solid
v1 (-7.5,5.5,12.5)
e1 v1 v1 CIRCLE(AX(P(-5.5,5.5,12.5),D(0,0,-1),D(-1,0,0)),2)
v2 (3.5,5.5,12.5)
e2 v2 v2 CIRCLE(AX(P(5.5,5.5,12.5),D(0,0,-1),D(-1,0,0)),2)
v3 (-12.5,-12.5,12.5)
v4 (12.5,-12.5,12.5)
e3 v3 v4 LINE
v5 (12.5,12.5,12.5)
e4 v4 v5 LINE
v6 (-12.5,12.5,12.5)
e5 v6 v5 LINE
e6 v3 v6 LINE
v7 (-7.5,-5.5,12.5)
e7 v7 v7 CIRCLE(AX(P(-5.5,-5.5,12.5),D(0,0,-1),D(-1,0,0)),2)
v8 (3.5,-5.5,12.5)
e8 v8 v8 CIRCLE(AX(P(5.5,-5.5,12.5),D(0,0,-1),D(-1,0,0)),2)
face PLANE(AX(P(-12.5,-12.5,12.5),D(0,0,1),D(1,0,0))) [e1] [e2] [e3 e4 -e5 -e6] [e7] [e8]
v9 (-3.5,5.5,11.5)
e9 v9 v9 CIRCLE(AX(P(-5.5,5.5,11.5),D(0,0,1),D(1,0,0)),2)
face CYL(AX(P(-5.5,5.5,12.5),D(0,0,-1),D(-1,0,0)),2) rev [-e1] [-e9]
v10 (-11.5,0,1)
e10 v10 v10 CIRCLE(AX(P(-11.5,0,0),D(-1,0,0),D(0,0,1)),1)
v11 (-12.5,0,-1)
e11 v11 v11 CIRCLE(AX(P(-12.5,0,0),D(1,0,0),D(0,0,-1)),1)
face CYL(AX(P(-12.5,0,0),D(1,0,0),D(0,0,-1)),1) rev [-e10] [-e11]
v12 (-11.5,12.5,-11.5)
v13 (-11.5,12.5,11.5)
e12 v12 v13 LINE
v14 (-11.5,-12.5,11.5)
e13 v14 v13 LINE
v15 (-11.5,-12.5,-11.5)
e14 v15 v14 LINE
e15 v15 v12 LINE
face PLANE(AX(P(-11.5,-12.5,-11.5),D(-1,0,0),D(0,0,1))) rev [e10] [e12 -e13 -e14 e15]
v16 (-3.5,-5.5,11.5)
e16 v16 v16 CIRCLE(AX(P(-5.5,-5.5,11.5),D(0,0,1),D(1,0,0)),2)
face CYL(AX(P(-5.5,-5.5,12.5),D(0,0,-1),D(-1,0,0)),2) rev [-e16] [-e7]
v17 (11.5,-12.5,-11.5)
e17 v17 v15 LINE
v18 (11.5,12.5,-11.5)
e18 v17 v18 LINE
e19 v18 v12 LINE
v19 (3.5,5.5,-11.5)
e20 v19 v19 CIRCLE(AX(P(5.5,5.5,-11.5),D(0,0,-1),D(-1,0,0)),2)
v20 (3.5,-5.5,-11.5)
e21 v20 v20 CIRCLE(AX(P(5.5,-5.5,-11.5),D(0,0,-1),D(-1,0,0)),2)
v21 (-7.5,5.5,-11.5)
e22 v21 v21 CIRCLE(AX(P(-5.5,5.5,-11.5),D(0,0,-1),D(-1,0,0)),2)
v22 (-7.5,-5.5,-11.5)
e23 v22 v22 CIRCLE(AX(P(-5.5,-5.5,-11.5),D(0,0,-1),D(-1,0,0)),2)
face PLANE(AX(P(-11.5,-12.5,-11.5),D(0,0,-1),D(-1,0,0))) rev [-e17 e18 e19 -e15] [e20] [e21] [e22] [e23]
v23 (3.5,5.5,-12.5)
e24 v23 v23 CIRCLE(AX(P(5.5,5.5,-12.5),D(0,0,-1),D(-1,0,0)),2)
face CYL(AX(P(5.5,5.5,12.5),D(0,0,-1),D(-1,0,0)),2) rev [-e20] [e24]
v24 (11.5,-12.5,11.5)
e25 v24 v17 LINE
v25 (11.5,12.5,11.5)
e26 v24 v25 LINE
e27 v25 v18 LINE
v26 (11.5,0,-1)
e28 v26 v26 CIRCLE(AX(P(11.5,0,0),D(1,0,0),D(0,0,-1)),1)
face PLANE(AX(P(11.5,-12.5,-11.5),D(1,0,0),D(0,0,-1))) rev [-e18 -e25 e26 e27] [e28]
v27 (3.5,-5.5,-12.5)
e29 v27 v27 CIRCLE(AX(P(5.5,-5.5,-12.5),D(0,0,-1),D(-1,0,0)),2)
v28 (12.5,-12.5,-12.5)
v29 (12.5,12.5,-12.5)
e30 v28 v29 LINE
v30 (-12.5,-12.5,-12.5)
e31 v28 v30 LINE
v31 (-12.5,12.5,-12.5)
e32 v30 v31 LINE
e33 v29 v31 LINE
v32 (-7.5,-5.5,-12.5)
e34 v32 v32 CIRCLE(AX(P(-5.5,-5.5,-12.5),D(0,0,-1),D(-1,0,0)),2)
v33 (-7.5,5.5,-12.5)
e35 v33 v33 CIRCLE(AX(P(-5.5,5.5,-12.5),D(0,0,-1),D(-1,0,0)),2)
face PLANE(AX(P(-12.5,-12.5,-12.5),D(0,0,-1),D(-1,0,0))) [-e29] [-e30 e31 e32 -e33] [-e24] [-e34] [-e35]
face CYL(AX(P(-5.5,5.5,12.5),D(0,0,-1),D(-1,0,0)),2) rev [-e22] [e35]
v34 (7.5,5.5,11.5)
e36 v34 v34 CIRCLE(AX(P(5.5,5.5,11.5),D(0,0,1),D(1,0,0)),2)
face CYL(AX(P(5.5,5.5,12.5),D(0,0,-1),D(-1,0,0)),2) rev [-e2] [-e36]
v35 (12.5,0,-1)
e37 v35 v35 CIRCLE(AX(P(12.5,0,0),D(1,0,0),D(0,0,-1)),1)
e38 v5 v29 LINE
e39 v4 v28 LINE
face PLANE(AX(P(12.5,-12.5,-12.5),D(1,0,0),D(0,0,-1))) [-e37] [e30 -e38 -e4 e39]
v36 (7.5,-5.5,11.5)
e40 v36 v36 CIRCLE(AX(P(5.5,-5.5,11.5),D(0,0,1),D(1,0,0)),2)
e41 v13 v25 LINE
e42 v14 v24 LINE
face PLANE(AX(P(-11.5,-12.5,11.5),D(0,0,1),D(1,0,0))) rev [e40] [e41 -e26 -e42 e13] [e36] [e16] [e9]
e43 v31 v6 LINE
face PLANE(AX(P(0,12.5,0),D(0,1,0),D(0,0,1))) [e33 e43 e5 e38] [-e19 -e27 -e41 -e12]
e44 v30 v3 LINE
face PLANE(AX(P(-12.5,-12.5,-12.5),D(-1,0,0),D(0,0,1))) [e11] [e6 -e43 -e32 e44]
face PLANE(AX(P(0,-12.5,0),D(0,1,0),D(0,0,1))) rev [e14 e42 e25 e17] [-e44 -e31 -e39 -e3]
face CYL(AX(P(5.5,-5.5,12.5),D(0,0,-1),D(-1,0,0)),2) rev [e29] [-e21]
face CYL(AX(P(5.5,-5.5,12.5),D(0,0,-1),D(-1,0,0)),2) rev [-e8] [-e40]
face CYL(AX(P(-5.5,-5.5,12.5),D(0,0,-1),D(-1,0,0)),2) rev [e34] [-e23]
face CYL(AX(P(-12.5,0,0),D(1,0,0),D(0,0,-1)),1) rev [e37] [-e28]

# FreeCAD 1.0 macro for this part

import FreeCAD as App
import Part
import Sketcher

V = App.Vector
Q = App.Units.Quantity


def add_polygon(sketch, points):
    """Adds a closed chain of lines whose ends are joined by coincident constraints."""
    first, n = sketch.GeometryCount, len(points)
    for a, b in zip(points, points[1:] + points[:1]):
        sketch.addGeometry(Part.LineSegment(App.Vector(*a, 0), App.Vector(*b, 0)), False)
    for i in range(n):
        sketch.addConstraint(Sketcher.Constraint("Coincident", first + i, 2, first + (i + 1) % n, 1))

doc = App.newDocument("Part")
body = doc.addObject("PartDesign::Body", "Body")

# Sketch on XZ plane
sketch1 = doc.addObject("Sketcher::SketchObject", "Sketch")
body.addObject(sketch1)
sketch1.AttachmentSupport = (doc.XZ_Plane, [""])
sketch1.MapMode = "FlatFace"
add_polygon(sketch1, [(-12.5, -12.5), (-12.5, 12.5), (12.5, 12.5), (12.5, -12.5)])  # lines 0-3
add_polygon(sketch1, [(11.5, 11.5), (-11.5, 11.5), (-11.5, -11.5), (11.5, -11.5)])  # lines 4-7
sketch1.addConstraint([
    Sketcher.Constraint("Vertical", 0),
    Sketcher.Constraint("Horizontal", 1),
    Sketcher.Constraint("Vertical", 2),
    Sketcher.Constraint("Horizontal", 3),
    Sketcher.Constraint("Horizontal", 4),
    Sketcher.Constraint("Vertical", 5),
    Sketcher.Constraint("Horizontal", 6),
    Sketcher.Constraint("Vertical", 7),
    Sketcher.Constraint("Symmetric", 0, 2, 2, 2, -1, 1),
    Sketcher.Constraint("Symmetric", 4, 2, 6, 2, -1, 1),
    Sketcher.Constraint("Equal", 3, 0),
    Sketcher.Constraint("Equal", 6, 5),
    Sketcher.Constraint("DistanceX", 1, 1, 1, 2, Q("25 mm")),
    Sketcher.Constraint("DistanceX", 4, 2, 4, 1, Q("23 mm")),
])
pad1 = doc.addObject("PartDesign::Pad", "Pad")
body.addObject(pad1)
pad1.Profile = sketch1
pad1.Type = "TwoLengths"
pad1.Length = 12.5
pad1.Length2 = 12.5
pad1.Reversed = True

# Sketch on XY plane
sketch2 = doc.addObject("Sketcher::SketchObject", "Sketch001")
body.addObject(sketch2)
sketch2.AttachmentSupport = (doc.XY_Plane, [""])
sketch2.MapMode = "FlatFace"
sketch2.AttachmentOffset = App.Placement(V(0, 0, -12.5), App.Rotation())
sketch2.addGeometry([
    Part.Circle(V(-5.5, 5.5, 0), V(0, 0, 1), 2),
    Part.Circle(V(-5.5, -5.5, 0), V(0, 0, 1), 2),
    Part.Circle(V(5.5, -5.5, 0), V(0, 0, 1), 2),
    Part.Circle(V(5.5, 5.5, 0), V(0, 0, 1), 2),
], False)
sketch2.addConstraint([
    Sketcher.Constraint("Equal", 0, 1),
    Sketcher.Constraint("Equal", 1, 2),
    Sketcher.Constraint("Equal", 2, 3),
    Sketcher.Constraint("Symmetric", 0, 3, 2, 3, -1, 1),
    Sketcher.Constraint("Symmetric", 1, 3, 3, 3, -1, 1),
    Sketcher.Constraint("Symmetric", 1, 3, 2, 3, -2),
    Sketcher.Constraint("Diameter", 0, Q("4 mm")),
    Sketcher.Constraint("DistanceY", 1, 3, 0, 3, Q("11 mm")),
    Sketcher.Constraint("DistanceX", 1, 3, 2, 3, Q("11 mm")),
])
pocket1 = doc.addObject("PartDesign::Pocket", "Pocket")
body.addObject(pocket1)
pocket1.Profile = sketch2
pocket1.Length = 25
pocket1.Reversed = True

# Sketch on YZ plane
sketch3 = doc.addObject("Sketcher::SketchObject", "Sketch002")
body.addObject(sketch3)
sketch3.AttachmentSupport = (doc.YZ_Plane, [""])
sketch3.MapMode = "FlatFace"
sketch3.AttachmentOffset = App.Placement(V(0, 0, 12.5), App.Rotation())
sketch3.addGeometry(Part.Circle(V(0, 0, 0), V(0, 0, 1), 1), False)
sketch3.addConstraint([
    Sketcher.Constraint("Coincident", 0, 3, -1, 1),
    Sketcher.Constraint("Diameter", 0, Q("2 mm")),
])
pocket2 = doc.addObject("PartDesign::Pocket", "Pocket001")
body.addObject(pocket2)
pocket2.Profile = sketch3
pocket2.Length = 25

doc.recompute()
